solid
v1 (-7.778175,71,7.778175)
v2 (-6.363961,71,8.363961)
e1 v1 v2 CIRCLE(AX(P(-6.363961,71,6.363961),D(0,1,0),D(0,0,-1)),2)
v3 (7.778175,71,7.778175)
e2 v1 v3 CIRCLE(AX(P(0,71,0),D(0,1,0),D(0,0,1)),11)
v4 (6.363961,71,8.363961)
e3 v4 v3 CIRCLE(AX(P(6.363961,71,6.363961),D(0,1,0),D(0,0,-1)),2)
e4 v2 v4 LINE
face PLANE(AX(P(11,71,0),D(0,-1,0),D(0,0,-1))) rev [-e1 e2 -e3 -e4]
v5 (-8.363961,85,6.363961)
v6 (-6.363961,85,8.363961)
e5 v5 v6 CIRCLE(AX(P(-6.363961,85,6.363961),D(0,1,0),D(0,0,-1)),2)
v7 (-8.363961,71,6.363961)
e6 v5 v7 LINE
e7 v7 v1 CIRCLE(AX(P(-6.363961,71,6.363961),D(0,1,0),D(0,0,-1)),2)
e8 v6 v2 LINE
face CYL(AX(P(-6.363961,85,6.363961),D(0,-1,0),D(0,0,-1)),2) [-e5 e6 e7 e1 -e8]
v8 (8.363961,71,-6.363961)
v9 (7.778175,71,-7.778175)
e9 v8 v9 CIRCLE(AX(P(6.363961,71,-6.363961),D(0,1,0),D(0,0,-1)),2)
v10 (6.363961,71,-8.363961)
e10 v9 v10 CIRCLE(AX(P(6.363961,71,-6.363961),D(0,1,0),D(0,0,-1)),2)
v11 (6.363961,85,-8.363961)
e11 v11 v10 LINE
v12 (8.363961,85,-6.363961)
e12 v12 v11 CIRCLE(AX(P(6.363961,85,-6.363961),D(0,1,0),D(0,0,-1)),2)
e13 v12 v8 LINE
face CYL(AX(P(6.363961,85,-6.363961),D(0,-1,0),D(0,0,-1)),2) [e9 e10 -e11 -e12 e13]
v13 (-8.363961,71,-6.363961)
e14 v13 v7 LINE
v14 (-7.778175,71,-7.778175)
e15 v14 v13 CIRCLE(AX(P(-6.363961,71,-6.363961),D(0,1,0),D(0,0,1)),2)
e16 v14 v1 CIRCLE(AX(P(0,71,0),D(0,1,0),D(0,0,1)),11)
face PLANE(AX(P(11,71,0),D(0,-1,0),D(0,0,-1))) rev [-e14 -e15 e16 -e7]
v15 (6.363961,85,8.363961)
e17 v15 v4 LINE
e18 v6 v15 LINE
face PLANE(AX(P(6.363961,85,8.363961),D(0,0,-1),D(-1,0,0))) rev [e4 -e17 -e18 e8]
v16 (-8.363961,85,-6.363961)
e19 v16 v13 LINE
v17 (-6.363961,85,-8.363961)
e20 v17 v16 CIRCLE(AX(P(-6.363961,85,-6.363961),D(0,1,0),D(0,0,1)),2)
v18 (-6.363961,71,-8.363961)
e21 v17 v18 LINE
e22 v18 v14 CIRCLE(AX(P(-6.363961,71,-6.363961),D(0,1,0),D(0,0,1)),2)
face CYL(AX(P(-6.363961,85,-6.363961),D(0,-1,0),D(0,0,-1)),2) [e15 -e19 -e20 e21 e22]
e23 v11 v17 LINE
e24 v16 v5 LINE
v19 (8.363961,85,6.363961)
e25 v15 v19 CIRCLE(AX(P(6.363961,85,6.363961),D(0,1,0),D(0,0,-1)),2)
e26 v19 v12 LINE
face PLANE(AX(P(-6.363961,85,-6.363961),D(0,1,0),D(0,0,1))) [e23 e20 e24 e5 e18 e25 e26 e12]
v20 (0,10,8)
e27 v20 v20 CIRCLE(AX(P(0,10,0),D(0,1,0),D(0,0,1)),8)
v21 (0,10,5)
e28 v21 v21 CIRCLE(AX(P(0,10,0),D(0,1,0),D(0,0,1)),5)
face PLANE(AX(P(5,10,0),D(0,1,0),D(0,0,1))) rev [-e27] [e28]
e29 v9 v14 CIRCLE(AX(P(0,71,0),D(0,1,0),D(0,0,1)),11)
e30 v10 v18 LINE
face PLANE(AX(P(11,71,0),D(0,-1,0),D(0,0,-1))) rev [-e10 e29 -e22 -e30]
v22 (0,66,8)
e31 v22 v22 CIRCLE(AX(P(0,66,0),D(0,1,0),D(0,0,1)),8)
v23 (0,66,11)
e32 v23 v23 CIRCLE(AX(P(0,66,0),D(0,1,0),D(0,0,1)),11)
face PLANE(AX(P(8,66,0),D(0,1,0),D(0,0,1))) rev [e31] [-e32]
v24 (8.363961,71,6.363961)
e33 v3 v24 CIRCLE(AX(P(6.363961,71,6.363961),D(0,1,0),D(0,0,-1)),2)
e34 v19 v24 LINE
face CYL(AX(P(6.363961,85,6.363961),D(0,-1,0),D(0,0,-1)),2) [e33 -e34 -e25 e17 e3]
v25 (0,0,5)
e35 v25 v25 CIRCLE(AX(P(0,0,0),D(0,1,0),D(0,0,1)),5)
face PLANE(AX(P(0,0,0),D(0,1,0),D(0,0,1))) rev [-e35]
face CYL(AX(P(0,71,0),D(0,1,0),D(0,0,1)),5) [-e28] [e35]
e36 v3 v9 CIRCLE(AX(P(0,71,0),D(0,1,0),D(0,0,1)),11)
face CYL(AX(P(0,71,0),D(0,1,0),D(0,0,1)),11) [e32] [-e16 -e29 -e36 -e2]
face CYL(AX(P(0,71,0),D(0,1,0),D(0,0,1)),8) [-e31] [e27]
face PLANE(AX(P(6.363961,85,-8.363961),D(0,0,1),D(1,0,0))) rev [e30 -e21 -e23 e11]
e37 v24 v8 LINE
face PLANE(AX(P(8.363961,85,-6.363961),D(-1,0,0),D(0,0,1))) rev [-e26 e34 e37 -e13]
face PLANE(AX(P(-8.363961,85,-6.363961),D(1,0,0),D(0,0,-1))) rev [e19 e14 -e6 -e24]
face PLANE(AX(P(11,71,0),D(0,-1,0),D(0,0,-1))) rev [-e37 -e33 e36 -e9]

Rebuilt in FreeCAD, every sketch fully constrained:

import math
import FreeCAD as App
import Part
import Sketcher

V = App.Vector
Q = App.Units.Quantity

doc = App.newDocument("Part")
params = doc.addObject("Spreadsheet::Sheet", "Params")
for row, (alias, value) in enumerate([
    ("sketch1_width", "5 mm"),
    ("sketch1_width2", "3 mm"),
    ("sketch1_height", "10 mm"),
    ("sketch1_height2", "56 mm"),
    ("revolution_angle", "360 deg"),
    ("sketch2_radius", "2 mm"),
    ("pad1_length", "14 mm"),
], start=1):
    params.set(f"A{row}", alias)
    params.set(f"B{row}", "=" + value)
    params.setAlias(f"B{row}", alias)

body = doc.addObject("PartDesign::Body", "Body")

sketch1 = body.newObject("Sketcher::SketchObject", "Sketch")
sketch1.AttachmentSupport = (doc.getObject("XY_Plane"), [""])
sketch1.MapMode = "FlatFace"
sketch1.addGeometry([
    Part.LineSegment(V(0, 0, 0), V(5, 0, 0)),
    Part.LineSegment(V(5, 0, 0), V(5, 10, 0)),
    Part.LineSegment(V(5, 10, 0), V(8, 10, 0)),
    Part.LineSegment(V(8, 10, 0), V(8, 66, 0)),
    Part.LineSegment(V(8, 66, 0), V(11, 66, 0)),
    Part.LineSegment(V(11, 66, 0), V(11, 71, 0)),
    Part.LineSegment(V(11, 71, 0), V(0, 71, 0)),
    Part.LineSegment(V(0, 71, 0), V(0, 0, 0)),
], False)
sketch1.addConstraint([
    Sketcher.Constraint("Coincident", 0, 2, 1, 1),
    Sketcher.Constraint("Coincident", 1, 2, 2, 1),
    Sketcher.Constraint("Coincident", 2, 2, 3, 1),
    Sketcher.Constraint("Coincident", 3, 2, 4, 1),
    Sketcher.Constraint("Coincident", 4, 2, 5, 1),
    Sketcher.Constraint("Coincident", 5, 2, 6, 1),
    Sketcher.Constraint("Coincident", 6, 2, 7, 1),
    Sketcher.Constraint("Coincident", 7, 2, 0, 1),
    Sketcher.Constraint("Horizontal", 0),
    Sketcher.Constraint("Vertical", 1),
    Sketcher.Constraint("Horizontal", 2),
    Sketcher.Constraint("Vertical", 3),
    Sketcher.Constraint("Horizontal", 4),
    Sketcher.Constraint("Vertical", 5),
    Sketcher.Constraint("Horizontal", 6),
    Sketcher.Constraint("Vertical", 7),
    Sketcher.Constraint("Coincident", 7, 2, -1, 1),
    Sketcher.Constraint("Equal", 2, 4),
    Sketcher.Constraint("Equal", 0, 5),
    Sketcher.Constraint("DistanceX", 0, 1, 0, 2, Q("5 mm")),
    Sketcher.Constraint("DistanceX", 2, 1, 2, 2, Q("3 mm")),
    Sketcher.Constraint("DistanceY", 1, 1, 1, 2, Q("10 mm")),
    Sketcher.Constraint("DistanceY", 3, 1, 3, 2, Q("56 mm")),
])
sketch1.setExpression("Constraints[19]", "Params.sketch1_width")
sketch1.setExpression("Constraints[20]", "Params.sketch1_width2")
sketch1.setExpression("Constraints[21]", "Params.sketch1_height")
sketch1.setExpression("Constraints[22]", "Params.sketch1_height2")
revolution = body.newObject("PartDesign::Revolution", "Revolution")
revolution.Profile = sketch1
revolution.ReferenceAxis = (sketch1, ["V_Axis"])
revolution.setExpression("Angle", "Params.revolution_angle")

sketch2 = body.newObject("Sketcher::SketchObject", "Sketch001")
sketch2.AttachmentSupport = (doc.getObject("XZ_Plane"), [""])
sketch2.MapMode = "FlatFace"
sketch2.AttachmentOffset = App.Placement(V(0, 0, -71), App.Rotation())
sketch2.addGeometry([
    Part.LineSegment(V(6.4, -8.4, 0), V(-6.4, -8.4, 0)),
    Part.ArcOfCircle(Part.Circle(V(-6.4, -6.4, 0), V(0, 0, 1), 2), math.radians(-180), math.radians(-90)),
    Part.LineSegment(V(-8.4, -6.4, 0), V(-8.4, 6.4, 0)),
    Part.ArcOfCircle(Part.Circle(V(-6.4, 6.4, 0), V(0, 0, 1), 2), math.radians(90), math.radians(180)),
    Part.LineSegment(V(-6.4, 8.4, 0), V(6.4, 8.4, 0)),
    Part.ArcOfCircle(Part.Circle(V(6.4, 6.4, 0), V(0, 0, 1), 2), math.radians(0), math.radians(90)),
    Part.LineSegment(V(8.4, 6.4, 0), V(8.4, -6.4, 0)),
    Part.ArcOfCircle(Part.Circle(V(6.4, -6.4, 0), V(0, 0, 1), 2), math.radians(-90), math.radians(0)),
], False)
sketch2.addConstraint([
    Sketcher.Constraint("Tangent", 0, 2, 1, 2),
    Sketcher.Constraint("Tangent", 1, 1, 2, 1),
    Sketcher.Constraint("Tangent", 2, 2, 3, 2),
    Sketcher.Constraint("Tangent", 3, 1, 4, 1),
    Sketcher.Constraint("Tangent", 4, 2, 5, 2),
    Sketcher.Constraint("Tangent", 5, 1, 6, 1),
    Sketcher.Constraint("Tangent", 6, 2, 7, 2),
    Sketcher.Constraint("Tangent", 7, 1, 0, 1),
    Sketcher.Constraint("Horizontal", 0),
    Sketcher.Constraint("Vertical", 2),
    Sketcher.Constraint("Horizontal", 4),
    Sketcher.Constraint("Vertical", 6),
    Sketcher.Constraint("Equal", 1, 3),
    Sketcher.Constraint("Equal", 3, 5),
    Sketcher.Constraint("Equal", 5, 7),
    Sketcher.Constraint("Symmetric", 1, 3, 5, 3, -1, 1),
    Sketcher.Constraint("Equal", 4, 2),
    Sketcher.Constraint("Radius", 1, Q("2 mm")),
    Sketcher.Constraint("DistanceX", 0, 2, 0, 1, Q("12.727922 mm")),
])
sketch2.setExpression("Constraints[17]", "Params.sketch2_radius")
pad1 = body.newObject("PartDesign::Pad", "Pad")
pad1.Profile = sketch2
pad1.setExpression("Length", "Params.pad1_length")
pad1.Reversed = True

doc.recompute()
